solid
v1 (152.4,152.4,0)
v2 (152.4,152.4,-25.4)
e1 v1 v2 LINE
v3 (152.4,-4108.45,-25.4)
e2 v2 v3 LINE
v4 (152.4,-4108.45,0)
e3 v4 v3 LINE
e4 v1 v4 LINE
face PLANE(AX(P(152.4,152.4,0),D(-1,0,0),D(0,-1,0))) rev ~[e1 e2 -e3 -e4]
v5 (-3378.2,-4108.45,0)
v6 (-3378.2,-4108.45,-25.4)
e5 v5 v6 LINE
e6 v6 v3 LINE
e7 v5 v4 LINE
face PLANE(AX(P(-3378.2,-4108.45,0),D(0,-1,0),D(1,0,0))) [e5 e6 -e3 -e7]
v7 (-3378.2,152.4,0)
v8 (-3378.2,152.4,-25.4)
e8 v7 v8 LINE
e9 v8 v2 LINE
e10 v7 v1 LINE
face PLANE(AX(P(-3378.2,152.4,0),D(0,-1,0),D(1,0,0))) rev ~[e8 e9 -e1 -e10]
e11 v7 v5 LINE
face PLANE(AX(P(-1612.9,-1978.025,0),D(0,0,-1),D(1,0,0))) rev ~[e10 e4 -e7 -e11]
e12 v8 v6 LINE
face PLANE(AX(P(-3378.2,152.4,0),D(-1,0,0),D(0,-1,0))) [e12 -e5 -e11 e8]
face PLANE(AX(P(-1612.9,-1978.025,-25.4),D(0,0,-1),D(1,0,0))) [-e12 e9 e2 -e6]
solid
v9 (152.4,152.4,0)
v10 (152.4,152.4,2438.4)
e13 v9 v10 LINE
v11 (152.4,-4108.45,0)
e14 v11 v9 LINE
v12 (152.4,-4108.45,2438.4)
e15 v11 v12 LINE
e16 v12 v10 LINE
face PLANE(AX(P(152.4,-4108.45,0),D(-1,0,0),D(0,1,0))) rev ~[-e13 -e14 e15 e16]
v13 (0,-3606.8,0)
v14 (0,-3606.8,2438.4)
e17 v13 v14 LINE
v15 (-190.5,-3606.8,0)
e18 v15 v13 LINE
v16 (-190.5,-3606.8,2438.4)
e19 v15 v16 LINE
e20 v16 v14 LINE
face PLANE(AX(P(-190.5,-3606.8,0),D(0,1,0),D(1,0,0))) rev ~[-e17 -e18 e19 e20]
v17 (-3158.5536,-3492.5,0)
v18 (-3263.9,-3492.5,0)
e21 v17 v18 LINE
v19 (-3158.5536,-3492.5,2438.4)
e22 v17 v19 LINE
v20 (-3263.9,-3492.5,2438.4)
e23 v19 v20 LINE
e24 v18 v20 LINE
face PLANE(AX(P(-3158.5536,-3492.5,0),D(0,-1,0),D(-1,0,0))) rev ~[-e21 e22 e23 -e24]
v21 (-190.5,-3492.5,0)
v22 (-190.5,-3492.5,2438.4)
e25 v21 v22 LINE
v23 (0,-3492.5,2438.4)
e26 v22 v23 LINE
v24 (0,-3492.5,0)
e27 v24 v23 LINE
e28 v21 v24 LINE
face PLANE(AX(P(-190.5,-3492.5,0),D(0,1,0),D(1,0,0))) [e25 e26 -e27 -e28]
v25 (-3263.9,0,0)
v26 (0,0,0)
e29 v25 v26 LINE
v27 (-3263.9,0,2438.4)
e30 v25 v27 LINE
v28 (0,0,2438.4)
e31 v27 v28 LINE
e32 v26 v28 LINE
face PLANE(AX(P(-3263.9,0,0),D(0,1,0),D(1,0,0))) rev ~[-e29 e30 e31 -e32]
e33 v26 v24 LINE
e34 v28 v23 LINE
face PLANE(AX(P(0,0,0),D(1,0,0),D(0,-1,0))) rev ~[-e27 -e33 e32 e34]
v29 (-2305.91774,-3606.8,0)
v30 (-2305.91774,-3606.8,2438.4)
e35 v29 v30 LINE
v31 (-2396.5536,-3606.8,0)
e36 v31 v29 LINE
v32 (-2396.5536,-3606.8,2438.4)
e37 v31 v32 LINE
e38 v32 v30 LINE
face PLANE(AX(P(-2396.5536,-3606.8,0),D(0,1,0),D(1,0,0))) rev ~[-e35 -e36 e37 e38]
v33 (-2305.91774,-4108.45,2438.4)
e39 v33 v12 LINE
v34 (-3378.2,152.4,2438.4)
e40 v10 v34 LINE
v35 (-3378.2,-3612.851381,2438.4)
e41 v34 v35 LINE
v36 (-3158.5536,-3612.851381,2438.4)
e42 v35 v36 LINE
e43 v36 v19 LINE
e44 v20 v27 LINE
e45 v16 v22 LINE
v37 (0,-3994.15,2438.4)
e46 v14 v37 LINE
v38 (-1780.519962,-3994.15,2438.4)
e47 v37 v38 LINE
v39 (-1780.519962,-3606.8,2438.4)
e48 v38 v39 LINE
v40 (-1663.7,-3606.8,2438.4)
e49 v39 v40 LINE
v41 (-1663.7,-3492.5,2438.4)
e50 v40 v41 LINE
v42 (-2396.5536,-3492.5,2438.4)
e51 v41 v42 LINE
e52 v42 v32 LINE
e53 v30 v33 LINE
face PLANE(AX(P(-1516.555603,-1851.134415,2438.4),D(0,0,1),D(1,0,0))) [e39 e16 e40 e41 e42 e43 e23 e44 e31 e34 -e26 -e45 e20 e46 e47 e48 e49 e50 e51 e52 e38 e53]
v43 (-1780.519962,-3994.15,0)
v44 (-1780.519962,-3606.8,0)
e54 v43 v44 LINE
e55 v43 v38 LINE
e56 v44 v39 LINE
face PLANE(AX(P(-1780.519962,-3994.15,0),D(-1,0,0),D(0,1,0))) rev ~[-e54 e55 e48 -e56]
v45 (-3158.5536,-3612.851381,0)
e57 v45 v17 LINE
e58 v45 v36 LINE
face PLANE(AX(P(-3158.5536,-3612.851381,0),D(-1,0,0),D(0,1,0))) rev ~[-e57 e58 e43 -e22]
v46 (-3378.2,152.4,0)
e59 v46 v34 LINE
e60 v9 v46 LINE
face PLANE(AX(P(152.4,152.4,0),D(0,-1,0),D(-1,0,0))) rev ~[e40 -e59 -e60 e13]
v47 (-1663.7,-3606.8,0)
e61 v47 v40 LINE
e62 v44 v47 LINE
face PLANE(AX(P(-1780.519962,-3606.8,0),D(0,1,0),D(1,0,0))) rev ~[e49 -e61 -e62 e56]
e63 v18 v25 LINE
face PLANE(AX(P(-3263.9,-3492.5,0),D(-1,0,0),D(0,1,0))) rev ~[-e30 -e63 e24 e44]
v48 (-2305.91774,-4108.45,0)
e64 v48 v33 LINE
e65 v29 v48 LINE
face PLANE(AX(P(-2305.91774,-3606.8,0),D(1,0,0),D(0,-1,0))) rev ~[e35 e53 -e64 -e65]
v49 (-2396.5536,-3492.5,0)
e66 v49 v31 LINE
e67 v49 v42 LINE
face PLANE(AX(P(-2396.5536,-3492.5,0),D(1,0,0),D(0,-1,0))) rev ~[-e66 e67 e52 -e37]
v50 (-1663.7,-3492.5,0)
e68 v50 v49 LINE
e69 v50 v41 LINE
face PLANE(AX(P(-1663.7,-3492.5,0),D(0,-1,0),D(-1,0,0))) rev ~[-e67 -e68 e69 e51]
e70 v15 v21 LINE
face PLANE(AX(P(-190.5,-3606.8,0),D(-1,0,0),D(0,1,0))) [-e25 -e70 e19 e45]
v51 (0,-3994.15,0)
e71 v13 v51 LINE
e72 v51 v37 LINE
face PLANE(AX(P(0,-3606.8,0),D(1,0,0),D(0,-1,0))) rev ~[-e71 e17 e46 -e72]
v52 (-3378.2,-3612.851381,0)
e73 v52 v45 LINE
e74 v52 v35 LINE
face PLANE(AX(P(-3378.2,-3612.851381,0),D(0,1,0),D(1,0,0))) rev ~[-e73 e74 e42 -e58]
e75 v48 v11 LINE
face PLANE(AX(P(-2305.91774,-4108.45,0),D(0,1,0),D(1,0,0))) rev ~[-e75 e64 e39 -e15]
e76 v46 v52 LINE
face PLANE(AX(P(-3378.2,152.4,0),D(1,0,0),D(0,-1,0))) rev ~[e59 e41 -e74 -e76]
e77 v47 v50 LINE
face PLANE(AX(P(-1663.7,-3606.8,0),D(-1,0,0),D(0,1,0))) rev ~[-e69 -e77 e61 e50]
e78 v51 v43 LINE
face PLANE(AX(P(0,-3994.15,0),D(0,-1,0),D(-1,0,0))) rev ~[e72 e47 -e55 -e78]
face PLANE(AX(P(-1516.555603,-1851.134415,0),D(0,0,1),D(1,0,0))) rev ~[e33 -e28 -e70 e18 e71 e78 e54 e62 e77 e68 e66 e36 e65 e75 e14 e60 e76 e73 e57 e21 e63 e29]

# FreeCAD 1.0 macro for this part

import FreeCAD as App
import Part
import Sketcher

V = App.Vector
Q = App.Units.Quantity

doc = App.newDocument("Part")
body = doc.addObject("PartDesign::Body", "Body")

# Sketch on XY plane
sketch1 = body.newObject("Sketcher::SketchObject", "Sketch")
sketch1.AttachmentSupport = (doc.getObject("XY_Plane"), [""])
sketch1.MapMode = "FlatFace"
sketch1.addGeometry([
    Part.LineSegment(V(-3264, 0, 0), V(0, 0, 0)),  # 0
    Part.LineSegment(V(0, 0, 0), V(0, -3492, 0)),  # 1
    Part.LineSegment(V(0, -3492, 0), V(-190, -3492, 0)),  # 2
    Part.LineSegment(V(-190, -3492, 0), V(-190, -3607, 0)),  # 3
    Part.LineSegment(V(-190, -3607, 0), V(0, -3607, 0)),  # 4
    Part.LineSegment(V(0, -3607, 0), V(0, -3994, 0)),  # 5
    Part.LineSegment(V(0, -3994, 0), V(-1781, -3994, 0)),  # 6
    Part.LineSegment(V(-1781, -3994, 0), V(-1781, -3607, 0)),  # 7
    Part.LineSegment(V(-1781, -3607, 0), V(-1664, -3607, 0)),  # 8
    Part.LineSegment(V(-1664, -3607, 0), V(-1664, -3492, 0)),  # 9
    Part.LineSegment(V(-1664, -3492, 0), V(-2397, -3492, 0)),  # 10
    Part.LineSegment(V(-2397, -3492, 0), V(-2397, -3607, 0)),  # 11
    Part.LineSegment(V(-2397, -3607, 0), V(-2306, -3607, 0)),  # 12
    Part.LineSegment(V(-2306, -3607, 0), V(-2306, -4108, 0)),  # 13
    Part.LineSegment(V(-2306, -4108, 0), V(152, -4108, 0)),  # 14
    Part.LineSegment(V(152, -4108, 0), V(152, 152, 0)),  # 15
    Part.LineSegment(V(152, 152, 0), V(-3378, 152, 0)),  # 16
    Part.LineSegment(V(-3378, 152, 0), V(-3378, -3613, 0)),  # 17
    Part.LineSegment(V(-3378, -3613, 0), V(-3159, -3613, 0)),  # 18
    Part.LineSegment(V(-3159, -3613, 0), V(-3159, -3492, 0)),  # 19
    Part.LineSegment(V(-3159, -3492, 0), V(-3264, -3492, 0)),  # 20
    Part.LineSegment(V(-3264, -3492, 0), V(-3264, 0, 0)),  # 21
], False)
sketch1.addConstraint([
    Sketcher.Constraint("Coincident", 0, 2, 1, 1),
    Sketcher.Constraint("Coincident", 1, 2, 2, 1),
    Sketcher.Constraint("Coincident", 2, 2, 3, 1),
    Sketcher.Constraint("Coincident", 3, 2, 4, 1),
    Sketcher.Constraint("Coincident", 4, 2, 5, 1),
    Sketcher.Constraint("Coincident", 5, 2, 6, 1),
    Sketcher.Constraint("Coincident", 6, 2, 7, 1),
    Sketcher.Constraint("Coincident", 7, 2, 8, 1),
    Sketcher.Constraint("Coincident", 8, 2, 9, 1),
    Sketcher.Constraint("Coincident", 9, 2, 10, 1),
    Sketcher.Constraint("Coincident", 10, 2, 11, 1),
    Sketcher.Constraint("Coincident", 11, 2, 12, 1),
    Sketcher.Constraint("Coincident", 12, 2, 13, 1),
    Sketcher.Constraint("Coincident", 13, 2, 14, 1),
    Sketcher.Constraint("Coincident", 14, 2, 15, 1),
    Sketcher.Constraint("Coincident", 15, 2, 16, 1),
    Sketcher.Constraint("Coincident", 16, 2, 17, 1),
    Sketcher.Constraint("Coincident", 17, 2, 18, 1),
    Sketcher.Constraint("Coincident", 18, 2, 19, 1),
    Sketcher.Constraint("Coincident", 19, 2, 20, 1),
    Sketcher.Constraint("Coincident", 20, 2, 21, 1),
    Sketcher.Constraint("Coincident", 21, 2, 0, 1),
    Sketcher.Constraint("Horizontal", 0),
    Sketcher.Constraint("Vertical", 1),
    Sketcher.Constraint("Horizontal", 2),
    Sketcher.Constraint("Vertical", 3),
    Sketcher.Constraint("Horizontal", 4),
    Sketcher.Constraint("Vertical", 5),
    Sketcher.Constraint("Horizontal", 6),
    Sketcher.Constraint("Vertical", 7),
    Sketcher.Constraint("Horizontal", 8),
    Sketcher.Constraint("Vertical", 9),
    Sketcher.Constraint("Horizontal", 10),
    Sketcher.Constraint("Vertical", 11),
    Sketcher.Constraint("Horizontal", 12),
    Sketcher.Constraint("Vertical", 13),
    Sketcher.Constraint("Horizontal", 14),
    Sketcher.Constraint("Vertical", 15),
    Sketcher.Constraint("Horizontal", 16),
    Sketcher.Constraint("Vertical", 17),
    Sketcher.Constraint("Horizontal", 18),
    Sketcher.Constraint("Vertical", 19),
    Sketcher.Constraint("Horizontal", 20),
    Sketcher.Constraint("Vertical", 21),
    Sketcher.Constraint("Coincident", 0, 2, -1, 1),
    Sketcher.Constraint("PointOnObject", 4, 2, -2),
    Sketcher.Constraint("Horizontal", 4, 2, 7, 2),
    Sketcher.Constraint("Horizontal", 2, 2, 9, 2),
    Sketcher.Constraint("Horizontal", 8, 2, 11, 2),
    Sketcher.Constraint("Horizontal", 10, 2, 19, 2),
    Sketcher.Constraint("DistanceX", 16, 2, 16, 1, Q("139 in")),
    Sketcher.Constraint("DistanceX", 0, 1, 0, 2, Q("128.5 in")),
    Sketcher.Constraint("DistanceX", 2, 2, 2, 1, Q("7.5 in")),
    Sketcher.Constraint("DistanceY", 1, 2, 1, 1, Q("137.5 in")),
    Sketcher.Constraint("DistanceY", 3, 2, 3, 1, Q("4.5 in")),
    Sketcher.Constraint("DistanceX", -1, 1, 14, 2, Q("6 in")),
    Sketcher.Constraint("DistanceY", -1, 1, 15, 2, Q("6 in")),
    Sketcher.Constraint("DistanceX", 8, 2, 3, 2, Q("58 in")),
    Sketcher.Constraint("DistanceX", 18, 2, 11, 2, Q("30 in")),
    Sketcher.Constraint("DistanceY", 5, 2, 5, 1, Q("15.25 in")),
    Sketcher.Constraint("DistanceY", 13, 2, 13, 1, Q("19.75 in")),
    Sketcher.Constraint("DistanceX", 10, 2, 10, 1, 732.8536),
    Sketcher.Constraint("DistanceX", 6, 2, 6, 1, 1780.519962),
    Sketcher.Constraint("DistanceX", 12, 1, 12, 2, 90.63586),
    Sketcher.Constraint("DistanceY", 17, 2, 17, 1, 3765.251381),
])
pad1 = body.newObject("PartDesign::Pad", "Pad")
pad1.Profile = sketch1
pad1.Length = Q("96 in")
body2 = doc.addObject("PartDesign::Body", "Body001")

# Sketch on XY plane
sketch2 = body2.newObject("Sketcher::SketchObject", "Sketch001")
sketch2.AttachmentSupport = (doc.getObject("XY_Plane001"), [""])
sketch2.MapMode = "FlatFace"
sketch2.addGeometry([
    Part.LineSegment(V(-3378, -4108, 0), V(-3378, 152, 0)),
    Part.LineSegment(V(-3378, 152, 0), V(152, 152, 0)),
    Part.LineSegment(V(152, 152, 0), V(152, -4108, 0)),
    Part.LineSegment(V(152, -4108, 0), V(-3378, -4108, 0)),
], False)
sketch2.addConstraint([
    Sketcher.Constraint("Coincident", 0, 2, 1, 1),
    Sketcher.Constraint("Coincident", 1, 2, 2, 1),
    Sketcher.Constraint("Coincident", 2, 2, 3, 1),
    Sketcher.Constraint("Coincident", 3, 2, 0, 1),
    Sketcher.Constraint("Vertical", 0),
    Sketcher.Constraint("Horizontal", 1),
    Sketcher.Constraint("Vertical", 2),
    Sketcher.Constraint("Horizontal", 3),
    Sketcher.Constraint("DistanceX", 1, 1, 1, 2, Q("139 in")),
    Sketcher.Constraint("DistanceX", 0, 2, -1, 1, Q("133 in")),
    Sketcher.Constraint("DistanceY", -1, 1, 0, 2, Q("6 in")),
    Sketcher.Constraint("DistanceY", 0, 1, 0, 2, Q("167.75 in")),
])
pad2 = body2.newObject("PartDesign::Pad", "Pad001")
pad2.Profile = sketch2
pad2.Length = Q("1 in")
pad2.Reversed = True

doc.recompute()
